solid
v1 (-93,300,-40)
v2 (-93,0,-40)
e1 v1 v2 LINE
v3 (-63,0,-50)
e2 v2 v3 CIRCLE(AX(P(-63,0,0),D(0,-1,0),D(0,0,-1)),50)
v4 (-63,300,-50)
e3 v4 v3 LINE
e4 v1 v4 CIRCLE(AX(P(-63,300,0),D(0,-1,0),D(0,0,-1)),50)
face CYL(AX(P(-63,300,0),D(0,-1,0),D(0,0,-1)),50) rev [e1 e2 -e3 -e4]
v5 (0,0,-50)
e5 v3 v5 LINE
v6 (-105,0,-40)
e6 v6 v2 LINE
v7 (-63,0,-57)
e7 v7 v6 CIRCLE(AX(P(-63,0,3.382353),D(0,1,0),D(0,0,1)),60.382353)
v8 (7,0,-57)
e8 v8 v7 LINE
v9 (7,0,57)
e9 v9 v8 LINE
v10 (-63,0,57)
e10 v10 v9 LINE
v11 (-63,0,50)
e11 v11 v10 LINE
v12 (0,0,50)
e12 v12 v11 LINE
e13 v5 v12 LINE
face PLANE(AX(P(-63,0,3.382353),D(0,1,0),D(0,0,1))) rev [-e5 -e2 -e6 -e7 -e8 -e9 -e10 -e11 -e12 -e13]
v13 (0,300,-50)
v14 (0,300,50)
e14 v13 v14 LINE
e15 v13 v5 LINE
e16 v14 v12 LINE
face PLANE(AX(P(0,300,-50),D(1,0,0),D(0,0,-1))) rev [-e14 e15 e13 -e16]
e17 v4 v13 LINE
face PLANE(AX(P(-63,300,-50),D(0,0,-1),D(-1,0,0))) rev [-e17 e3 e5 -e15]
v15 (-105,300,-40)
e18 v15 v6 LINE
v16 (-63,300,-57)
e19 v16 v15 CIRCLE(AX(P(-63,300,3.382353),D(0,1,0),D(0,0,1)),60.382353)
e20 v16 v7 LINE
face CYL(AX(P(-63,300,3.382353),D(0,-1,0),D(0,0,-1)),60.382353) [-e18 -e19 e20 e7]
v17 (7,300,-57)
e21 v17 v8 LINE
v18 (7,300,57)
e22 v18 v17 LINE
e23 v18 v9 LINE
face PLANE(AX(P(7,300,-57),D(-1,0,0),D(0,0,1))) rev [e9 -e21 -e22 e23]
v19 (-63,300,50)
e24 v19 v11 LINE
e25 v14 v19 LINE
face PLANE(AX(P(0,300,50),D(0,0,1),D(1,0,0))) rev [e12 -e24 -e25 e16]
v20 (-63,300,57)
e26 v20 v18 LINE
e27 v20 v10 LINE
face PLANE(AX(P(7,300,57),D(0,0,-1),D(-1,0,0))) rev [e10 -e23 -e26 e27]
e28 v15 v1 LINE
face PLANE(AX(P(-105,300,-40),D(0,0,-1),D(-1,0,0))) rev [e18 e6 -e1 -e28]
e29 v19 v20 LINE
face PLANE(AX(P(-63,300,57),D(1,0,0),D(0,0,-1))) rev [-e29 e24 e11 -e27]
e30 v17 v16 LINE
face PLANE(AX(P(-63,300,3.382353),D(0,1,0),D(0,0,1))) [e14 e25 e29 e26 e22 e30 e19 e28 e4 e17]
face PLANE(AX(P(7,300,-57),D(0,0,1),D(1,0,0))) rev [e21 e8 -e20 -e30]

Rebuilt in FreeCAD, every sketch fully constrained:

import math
import FreeCAD as App
import Part
import Sketcher

doc = App.newDocument("Part")
body = doc.addObject("PartDesign::Body", "Body")

# Sketch on XZ plane
sketch1 = doc.addObject("Sketcher::SketchObject", "Sketch")
body.addObject(sketch1)
sketch1.AttachmentSupport = (doc.XZ_Plane, [""])
sketch1.MapMode = "FlatFace"
sketch1.addGeometry([
    Part.LineSegment(App.Vector(7, 57, 0), App.Vector(7, -57, 0)),  # 0
    Part.LineSegment(App.Vector(7, -57, 0), App.Vector(-63, -57, 0)),  # 1
    Part.ArcOfCircle(Part.Circle(App.Vector(-63, 3, 0), App.Vector(0, 0, 1), 60), math.radians(-134), math.radians(-90)),  # 2
    Part.LineSegment(App.Vector(-105, -40, 0), App.Vector(-93, -40, 0)),  # 3
    Part.ArcOfCircle(Part.Circle(App.Vector(-63, 0, 0), App.Vector(0, 0, 1), 50), math.radians(-127), math.radians(-90)),  # 4
    Part.LineSegment(App.Vector(-63, -50, 0), App.Vector(0, -50, 0)),  # 5
    Part.LineSegment(App.Vector(0, -50, 0), App.Vector(0, 50, 0)),  # 6
    Part.LineSegment(App.Vector(0, 50, 0), App.Vector(-63, 50, 0)),  # 7
    Part.LineSegment(App.Vector(-63, 50, 0), App.Vector(-63, 57, 0)),  # 8
    Part.LineSegment(App.Vector(-63, 57, 0), App.Vector(7, 57, 0)),  # 9
], False)
sketch1.addConstraint([
    Sketcher.Constraint("Coincident", 0, 2, 1, 1),
    Sketcher.Constraint("Tangent", 1, 2, 2, 2),
    Sketcher.Constraint("Coincident", 2, 1, 3, 1),
    Sketcher.Constraint("Coincident", 3, 2, 4, 1),
    Sketcher.Constraint("Tangent", 4, 2, 5, 1),
    Sketcher.Constraint("Coincident", 5, 2, 6, 1),
    Sketcher.Constraint("Coincident", 6, 2, 7, 1),
    Sketcher.Constraint("Coincident", 7, 2, 8, 1),
    Sketcher.Constraint("Coincident", 8, 2, 9, 1),
    Sketcher.Constraint("Coincident", 9, 2, 0, 1),
    Sketcher.Constraint("Vertical", 0),
    Sketcher.Constraint("Horizontal", 1),
    Sketcher.Constraint("Horizontal", 3),
    Sketcher.Constraint("Horizontal", 5),
    Sketcher.Constraint("Vertical", 6),
    Sketcher.Constraint("Horizontal", 7),
    Sketcher.Constraint("Vertical", 8),
    Sketcher.Constraint("Horizontal", 9),
    Sketcher.Constraint("Symmetric", 5, 2, 6, 2, -1, 1),
    Sketcher.Constraint("Symmetric", 1, 2, 8, 2, -1),
    Sketcher.Constraint("PointOnObject", 4, 3, -1),
    Sketcher.Constraint("Vertical", 2, 3, 4, 3),
    Sketcher.Constraint("Radius", 4, 50.0),
    Sketcher.Constraint("DistanceX", 1, 2, 1, 1, 70.0),
    Sketcher.Constraint("DistanceX", 3, 1, 3, 2, 12.0),
    Sketcher.Constraint("DistanceX", 5, 1, 5, 2, 63.0),
    Sketcher.Constraint("DistanceY", 0, 2, 0, 1, 114.0),
    Sketcher.Constraint("DistanceX", 2, 1, -1, 1, 105.0),
])
pad1 = doc.addObject("PartDesign::Pad", "Pad")
body.addObject(pad1)
pad1.Profile = sketch1
pad1.Length = 300
pad1.Reversed = True

doc.recompute()
